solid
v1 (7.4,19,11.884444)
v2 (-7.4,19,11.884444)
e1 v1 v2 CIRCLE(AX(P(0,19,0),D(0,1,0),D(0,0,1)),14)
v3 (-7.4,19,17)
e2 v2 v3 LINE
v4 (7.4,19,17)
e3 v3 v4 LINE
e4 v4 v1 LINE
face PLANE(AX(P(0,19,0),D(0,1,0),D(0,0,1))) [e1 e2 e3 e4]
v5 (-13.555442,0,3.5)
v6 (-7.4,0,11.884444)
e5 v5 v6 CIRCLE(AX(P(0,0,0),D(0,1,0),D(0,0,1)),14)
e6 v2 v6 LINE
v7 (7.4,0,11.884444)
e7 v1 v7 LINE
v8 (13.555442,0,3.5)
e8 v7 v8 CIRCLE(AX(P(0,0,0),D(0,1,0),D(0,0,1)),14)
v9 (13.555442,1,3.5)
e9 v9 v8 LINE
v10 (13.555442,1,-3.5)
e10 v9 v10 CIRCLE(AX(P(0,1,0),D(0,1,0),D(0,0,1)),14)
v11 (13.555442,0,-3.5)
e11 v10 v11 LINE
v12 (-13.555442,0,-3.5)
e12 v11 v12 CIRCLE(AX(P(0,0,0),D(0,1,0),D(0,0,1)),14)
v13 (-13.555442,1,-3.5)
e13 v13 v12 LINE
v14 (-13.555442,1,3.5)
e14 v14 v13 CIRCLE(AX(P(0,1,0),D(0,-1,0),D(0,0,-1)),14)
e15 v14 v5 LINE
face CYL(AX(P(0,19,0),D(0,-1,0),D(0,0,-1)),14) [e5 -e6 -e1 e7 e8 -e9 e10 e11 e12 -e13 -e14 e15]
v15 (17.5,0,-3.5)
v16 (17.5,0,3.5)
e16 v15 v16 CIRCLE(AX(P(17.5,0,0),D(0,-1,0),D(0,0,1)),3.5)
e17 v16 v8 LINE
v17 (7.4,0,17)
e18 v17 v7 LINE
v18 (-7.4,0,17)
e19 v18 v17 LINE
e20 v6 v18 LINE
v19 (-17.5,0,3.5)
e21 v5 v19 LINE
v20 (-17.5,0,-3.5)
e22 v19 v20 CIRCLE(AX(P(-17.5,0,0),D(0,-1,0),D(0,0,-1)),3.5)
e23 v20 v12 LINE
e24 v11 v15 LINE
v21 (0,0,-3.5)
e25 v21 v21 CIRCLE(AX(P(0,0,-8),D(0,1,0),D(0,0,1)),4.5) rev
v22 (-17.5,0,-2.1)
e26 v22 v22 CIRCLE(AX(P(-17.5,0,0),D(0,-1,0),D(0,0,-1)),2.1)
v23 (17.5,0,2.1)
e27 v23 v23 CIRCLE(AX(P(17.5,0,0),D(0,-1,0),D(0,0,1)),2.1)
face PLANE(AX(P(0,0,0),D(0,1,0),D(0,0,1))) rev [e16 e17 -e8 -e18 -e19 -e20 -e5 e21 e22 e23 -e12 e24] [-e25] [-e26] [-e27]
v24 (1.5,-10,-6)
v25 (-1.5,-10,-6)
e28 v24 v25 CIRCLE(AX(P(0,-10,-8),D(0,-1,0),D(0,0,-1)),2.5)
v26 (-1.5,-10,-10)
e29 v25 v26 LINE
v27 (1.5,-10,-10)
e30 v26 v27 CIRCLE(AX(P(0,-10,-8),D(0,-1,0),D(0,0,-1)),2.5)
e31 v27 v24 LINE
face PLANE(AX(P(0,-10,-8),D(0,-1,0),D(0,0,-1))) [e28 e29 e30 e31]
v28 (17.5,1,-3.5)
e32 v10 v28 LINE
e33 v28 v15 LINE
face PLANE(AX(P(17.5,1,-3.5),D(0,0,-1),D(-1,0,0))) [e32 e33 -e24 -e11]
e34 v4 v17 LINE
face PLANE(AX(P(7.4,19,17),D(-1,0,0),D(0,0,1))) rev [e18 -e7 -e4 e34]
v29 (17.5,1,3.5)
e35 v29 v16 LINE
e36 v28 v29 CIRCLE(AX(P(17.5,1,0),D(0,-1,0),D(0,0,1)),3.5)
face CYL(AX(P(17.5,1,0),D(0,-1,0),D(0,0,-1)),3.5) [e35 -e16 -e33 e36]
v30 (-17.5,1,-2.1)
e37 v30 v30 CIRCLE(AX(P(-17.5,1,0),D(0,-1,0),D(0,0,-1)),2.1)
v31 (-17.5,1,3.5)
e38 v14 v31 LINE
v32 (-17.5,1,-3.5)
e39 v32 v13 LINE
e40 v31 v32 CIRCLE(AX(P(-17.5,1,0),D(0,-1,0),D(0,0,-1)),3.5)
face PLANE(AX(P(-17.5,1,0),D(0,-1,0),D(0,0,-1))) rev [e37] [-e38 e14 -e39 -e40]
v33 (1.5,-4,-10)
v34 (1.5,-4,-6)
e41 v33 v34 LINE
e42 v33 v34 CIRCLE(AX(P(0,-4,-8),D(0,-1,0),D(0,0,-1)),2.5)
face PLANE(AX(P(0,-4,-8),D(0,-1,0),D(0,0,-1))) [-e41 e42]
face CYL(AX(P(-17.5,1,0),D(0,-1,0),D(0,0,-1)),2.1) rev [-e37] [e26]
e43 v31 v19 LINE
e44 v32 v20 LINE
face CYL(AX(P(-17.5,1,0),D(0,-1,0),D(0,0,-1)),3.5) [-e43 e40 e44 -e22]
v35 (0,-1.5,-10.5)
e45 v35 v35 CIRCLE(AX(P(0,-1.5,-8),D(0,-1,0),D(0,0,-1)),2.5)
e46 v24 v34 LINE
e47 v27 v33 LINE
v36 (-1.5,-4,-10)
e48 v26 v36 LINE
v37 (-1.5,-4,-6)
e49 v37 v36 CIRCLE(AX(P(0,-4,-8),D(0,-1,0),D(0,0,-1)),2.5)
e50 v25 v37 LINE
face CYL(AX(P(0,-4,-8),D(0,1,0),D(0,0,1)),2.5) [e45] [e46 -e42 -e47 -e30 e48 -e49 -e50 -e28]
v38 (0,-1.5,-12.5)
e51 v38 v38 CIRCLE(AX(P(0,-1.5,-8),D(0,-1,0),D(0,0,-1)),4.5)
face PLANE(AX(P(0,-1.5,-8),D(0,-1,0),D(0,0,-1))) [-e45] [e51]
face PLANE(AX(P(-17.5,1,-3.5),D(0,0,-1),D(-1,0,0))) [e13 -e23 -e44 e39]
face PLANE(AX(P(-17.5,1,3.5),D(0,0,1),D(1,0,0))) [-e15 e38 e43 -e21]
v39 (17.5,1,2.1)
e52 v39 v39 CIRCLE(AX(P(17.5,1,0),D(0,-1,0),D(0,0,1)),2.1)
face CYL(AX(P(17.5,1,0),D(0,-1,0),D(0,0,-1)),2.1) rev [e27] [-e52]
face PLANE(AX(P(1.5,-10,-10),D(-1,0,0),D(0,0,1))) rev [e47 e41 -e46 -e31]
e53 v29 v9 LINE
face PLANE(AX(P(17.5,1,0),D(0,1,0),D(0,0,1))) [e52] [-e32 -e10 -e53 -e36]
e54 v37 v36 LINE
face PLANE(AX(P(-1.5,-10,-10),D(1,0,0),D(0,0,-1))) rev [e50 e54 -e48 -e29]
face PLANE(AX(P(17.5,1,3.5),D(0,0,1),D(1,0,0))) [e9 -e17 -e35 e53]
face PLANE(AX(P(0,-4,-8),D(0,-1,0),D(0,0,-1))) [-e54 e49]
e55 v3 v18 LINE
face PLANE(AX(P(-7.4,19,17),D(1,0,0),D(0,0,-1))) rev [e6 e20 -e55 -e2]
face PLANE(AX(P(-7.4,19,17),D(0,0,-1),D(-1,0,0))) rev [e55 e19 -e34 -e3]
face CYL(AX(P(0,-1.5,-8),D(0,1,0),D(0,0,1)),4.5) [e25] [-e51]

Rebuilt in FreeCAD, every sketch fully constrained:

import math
import FreeCAD as App
import Part
import Sketcher

doc = App.newDocument("Part")
body = doc.addObject("PartDesign::Body", "Body")

# Sketch on XZ plane
sketch1 = body.newObject("Sketcher::SketchObject", "Sketch")
sketch1.AttachmentSupport = (doc.getObject("XZ_Plane"), [""])
sketch1.MapMode = "FlatFace"
sketch1.addGeometry([
    Part.LineSegment(App.Vector(-7.4, 11.884444, 0), App.Vector(-7.4, 17, 0)),
    Part.LineSegment(App.Vector(-7.4, 17, 0), App.Vector(7.4, 17, 0)),
    Part.LineSegment(App.Vector(7.4, 17, 0), App.Vector(7.4, 11.884444, 0)),
    Part.ArcOfCircle(Part.Circle(App.Vector(0, 0, 0), App.Vector(0, 0, 1), 14), math.radians(121.908983), math.radians(418.091017)),
], False)
sketch1.addConstraint([
    Sketcher.Constraint("Coincident", 0, 2, 1, 1),
    Sketcher.Constraint("Coincident", 1, 2, 2, 1),
    Sketcher.Constraint("Coincident", 2, 2, 3, 2),
    Sketcher.Constraint("Coincident", 3, 1, 0, 1),
    Sketcher.Constraint("Vertical", 0),
    Sketcher.Constraint("Horizontal", 1),
    Sketcher.Constraint("Vertical", 2),
    Sketcher.Constraint("Coincident", 3, 3, -1, 1),
    Sketcher.Constraint("Horizontal", 2, 2, 3, 1),
    Sketcher.Constraint("Radius", 3, 14.0),
    Sketcher.Constraint("DistanceX", 1, 1, 1, 2, 14.8),
    Sketcher.Constraint("DistanceY", -1, 1, 0, 2, 17.0),
])
pad1 = body.newObject("PartDesign::Pad", "Pad")
pad1.Profile = sketch1
pad1.Length = 19
pad1.Reversed = True

# Sketch on XZ plane
sketch2 = body.newObject("Sketcher::SketchObject", "Sketch001")
sketch2.AttachmentSupport = (doc.getObject("XZ_Plane"), [""])
sketch2.MapMode = "FlatFace"
sketch2.addGeometry([
    Part.LineSegment(App.Vector(13.555442, 3.5, 0), App.Vector(13.555442, -3.5, 0)),  # 0
    Part.LineSegment(App.Vector(13.555442, -3.5, 0), App.Vector(17.5, -3.5, 0)),  # 1
    Part.ArcOfCircle(Part.Circle(App.Vector(17.5, 0, 0), App.Vector(0, 0, 1), 3.5), math.radians(-90), math.radians(90)),  # 2
    Part.LineSegment(App.Vector(17.5, 3.5, 0), App.Vector(13.555442, 3.5, 0)),  # 3
    Part.Circle(App.Vector(17.5, 0, 0), App.Vector(0, 0, 1), 2.1),  # 4
    Part.LineSegment(App.Vector(-17.5, -3.5, 0), App.Vector(-13.555442, -3.5, 0)),  # 5
    Part.LineSegment(App.Vector(-13.555442, -3.5, 0), App.Vector(-13.555442, 3.5, 0)),  # 6
    Part.LineSegment(App.Vector(-13.555442, 3.5, 0), App.Vector(-17.5, 3.5, 0)),  # 7
    Part.ArcOfCircle(Part.Circle(App.Vector(-17.5, 0, 0), App.Vector(0, 0, 1), 3.5), math.radians(90), math.radians(270)),  # 8
    Part.Circle(App.Vector(-17.5, 0, 0), App.Vector(0, 0, 1), 2.1),  # 9
], False)
sketch2.addConstraint([
    Sketcher.Constraint("Coincident", 0, 2, 1, 1),
    Sketcher.Constraint("Tangent", 1, 2, 2, 1),
    Sketcher.Constraint("Tangent", 2, 2, 3, 1),
    Sketcher.Constraint("Coincident", 3, 2, 0, 1),
    Sketcher.Constraint("Coincident", 5, 2, 6, 1),
    Sketcher.Constraint("Coincident", 6, 2, 7, 1),
    Sketcher.Constraint("Tangent", 7, 2, 8, 1),
    Sketcher.Constraint("Tangent", 8, 2, 5, 1),
    Sketcher.Constraint("Vertical", 0),
    Sketcher.Constraint("Horizontal", 1),
    Sketcher.Constraint("Horizontal", 3),
    Sketcher.Constraint("Horizontal", 5),
    Sketcher.Constraint("Vertical", 6),
    Sketcher.Constraint("Horizontal", 7),
    Sketcher.Constraint("Coincident", 4, 3, 2, 3),
    Sketcher.Constraint("Coincident", 9, 3, 8, 3),
    Sketcher.Constraint("Equal", 2, 8),
    Sketcher.Constraint("Equal", 4, 9),
    Sketcher.Constraint("Symmetric", 2, 3, 8, 3, -1, 1),
    Sketcher.Constraint("Symmetric", 0, 2, 5, 2, -2),
    Sketcher.Constraint("Diameter", 4, 4.2),
    Sketcher.Constraint("Radius", 2, 3.5),
    Sketcher.Constraint("DistanceX", 8, 3, 2, 3, 35.0),
    Sketcher.Constraint("DistanceX", 1, 1, 1, 2, 3.944558),
])
pad2 = body.newObject("PartDesign::Pad", "Pad001")
pad2.Profile = sketch2
pad2.Length = 1
pad2.Reversed = True

# Sketch on XZ plane
sketch3 = body.newObject("Sketcher::SketchObject", "Sketch002")
sketch3.AttachmentSupport = (doc.getObject("XZ_Plane"), [""])
sketch3.MapMode = "FlatFace"
sketch3.addGeometry(Part.Circle(App.Vector(0, -8, 0), App.Vector(0, 0, 1), 4.5), False)
sketch3.addConstraint([
    Sketcher.Constraint("PointOnObject", 0, 3, -2),
    Sketcher.Constraint("Diameter", 0, 9.0),
    Sketcher.Constraint("DistanceY", 0, 3, -1, 1, 8.0),
])
pad3 = body.newObject("PartDesign::Pad", "Pad002")
pad3.Profile = sketch3
pad3.Length = 1.5

# Sketch on XZ plane
sketch4 = body.newObject("Sketcher::SketchObject", "Sketch003")
sketch4.AttachmentSupport = (doc.getObject("XZ_Plane"), [""])
sketch4.MapMode = "FlatFace"
sketch4.AttachmentOffset = App.Placement(App.Vector(0, 0, 1.5), App.Rotation())
sketch4.addGeometry(Part.Circle(App.Vector(0, -8, 0), App.Vector(0, 0, 1), 2.5), False)
sketch4.addConstraint([
    Sketcher.Constraint("PointOnObject", 0, 3, -2),
    Sketcher.Constraint("Diameter", 0, 5.0),
    Sketcher.Constraint("DistanceY", 0, 3, -1, 1, 8.0),
])
pad4 = body.newObject("PartDesign::Pad", "Pad003")
pad4.Profile = sketch4
pad4.Length = 2.5

# Sketch on XZ plane
sketch5 = body.newObject("Sketcher::SketchObject", "Sketch004")
sketch5.AttachmentSupport = (doc.getObject("XZ_Plane"), [""])
sketch5.MapMode = "FlatFace"
sketch5.AttachmentOffset = App.Placement(App.Vector(0, 0, 4), App.Rotation())
sketch5.addGeometry([
    Part.LineSegment(App.Vector(-1.5, -6, 0), App.Vector(-1.5, -10, 0)),
    Part.ArcOfCircle(Part.Circle(App.Vector(0, -8, 0), App.Vector(0, 0, 1), 2.5), math.radians(-126.869898), math.radians(-53.130102)),
    Part.LineSegment(App.Vector(1.5, -10, 0), App.Vector(1.5, -6, 0)),
    Part.ArcOfCircle(Part.Circle(App.Vector(0, -8, 0), App.Vector(0, 0, 1), 2.5), math.radians(53.130102), math.radians(126.869898)),
], False)
sketch5.addConstraint([
    Sketcher.Constraint("Coincident", 0, 2, 1, 1),
    Sketcher.Constraint("Coincident", 1, 2, 2, 1),
    Sketcher.Constraint("Coincident", 2, 2, 3, 1),
    Sketcher.Constraint("Coincident", 3, 2, 0, 1),
    Sketcher.Constraint("Vertical", 0),
    Sketcher.Constraint("Vertical", 2),
    Sketcher.Constraint("Coincident", 3, 3, 1, 3),
    Sketcher.Constraint("Equal", 1, 3),
    Sketcher.Constraint("Symmetric", 0, 2, 1, 2, -2),
    Sketcher.Constraint("Radius", 1, 2.5),
    Sketcher.Constraint("DistanceY", 0, 2, 0, 1, 4.0),
    Sketcher.Constraint("DistanceY", 1, 3, -1, 1, 8.0),
])
pad5 = body.newObject("PartDesign::Pad", "Pad004")
pad5.Profile = sketch5
pad5.Length = 6

doc.recompute()
